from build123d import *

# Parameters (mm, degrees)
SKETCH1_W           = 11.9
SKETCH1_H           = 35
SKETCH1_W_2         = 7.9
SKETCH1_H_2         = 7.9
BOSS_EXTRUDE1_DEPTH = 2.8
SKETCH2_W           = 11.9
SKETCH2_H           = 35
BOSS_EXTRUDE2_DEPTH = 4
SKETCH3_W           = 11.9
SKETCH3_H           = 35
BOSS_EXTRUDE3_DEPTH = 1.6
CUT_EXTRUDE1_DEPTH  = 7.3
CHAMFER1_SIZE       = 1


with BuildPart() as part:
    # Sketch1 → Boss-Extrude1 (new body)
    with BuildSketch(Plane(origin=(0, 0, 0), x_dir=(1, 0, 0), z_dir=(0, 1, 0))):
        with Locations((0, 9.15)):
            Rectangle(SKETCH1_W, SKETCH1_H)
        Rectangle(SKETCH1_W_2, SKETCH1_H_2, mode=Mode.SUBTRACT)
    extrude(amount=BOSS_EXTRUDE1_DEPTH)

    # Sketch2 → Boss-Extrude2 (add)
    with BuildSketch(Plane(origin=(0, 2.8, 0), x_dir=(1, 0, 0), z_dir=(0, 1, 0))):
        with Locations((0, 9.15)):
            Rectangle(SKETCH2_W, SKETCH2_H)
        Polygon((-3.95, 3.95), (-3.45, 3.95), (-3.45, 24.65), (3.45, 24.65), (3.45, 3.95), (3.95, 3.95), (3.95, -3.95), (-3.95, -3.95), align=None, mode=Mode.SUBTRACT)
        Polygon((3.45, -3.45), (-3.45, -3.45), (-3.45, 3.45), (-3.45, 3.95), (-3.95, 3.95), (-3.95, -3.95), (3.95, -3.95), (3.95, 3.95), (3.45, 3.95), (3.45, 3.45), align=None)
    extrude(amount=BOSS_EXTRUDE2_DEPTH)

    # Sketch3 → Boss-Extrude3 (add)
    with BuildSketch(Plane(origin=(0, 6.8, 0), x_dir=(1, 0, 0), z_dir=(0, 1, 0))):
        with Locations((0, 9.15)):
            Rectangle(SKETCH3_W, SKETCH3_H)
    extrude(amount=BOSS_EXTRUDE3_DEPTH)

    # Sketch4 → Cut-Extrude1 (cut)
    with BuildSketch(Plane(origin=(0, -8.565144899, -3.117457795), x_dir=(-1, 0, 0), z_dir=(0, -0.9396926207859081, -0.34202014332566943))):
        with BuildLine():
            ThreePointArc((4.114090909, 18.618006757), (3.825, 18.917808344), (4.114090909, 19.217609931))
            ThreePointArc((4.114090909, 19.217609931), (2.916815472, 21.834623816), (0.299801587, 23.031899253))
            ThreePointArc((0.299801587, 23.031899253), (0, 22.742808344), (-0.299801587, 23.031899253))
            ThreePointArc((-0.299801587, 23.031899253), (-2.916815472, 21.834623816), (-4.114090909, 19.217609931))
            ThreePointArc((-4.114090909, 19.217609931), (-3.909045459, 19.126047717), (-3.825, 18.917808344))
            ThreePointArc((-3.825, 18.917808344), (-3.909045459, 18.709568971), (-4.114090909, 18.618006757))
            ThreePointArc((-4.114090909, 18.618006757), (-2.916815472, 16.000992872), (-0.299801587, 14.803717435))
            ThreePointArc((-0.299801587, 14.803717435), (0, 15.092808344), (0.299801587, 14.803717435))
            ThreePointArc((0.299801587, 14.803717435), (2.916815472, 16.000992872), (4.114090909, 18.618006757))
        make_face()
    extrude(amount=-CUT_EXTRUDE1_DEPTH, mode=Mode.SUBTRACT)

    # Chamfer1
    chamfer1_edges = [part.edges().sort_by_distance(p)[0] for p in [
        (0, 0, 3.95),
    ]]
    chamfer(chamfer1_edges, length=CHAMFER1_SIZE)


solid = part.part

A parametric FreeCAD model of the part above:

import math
import FreeCAD as App
import Part
import Sketcher
from FreeCAD import Vector


def edges_at(feature, points):
    """Names of the edges that pass closest to the given points."""
    edges = feature.Shape.Edges
    near = lambda p: min(range(len(edges)), key=lambda i: edges[i].distToShape(Part.Vertex(*p))[0])
    return sorted({f"Edge{near(p) + 1}" for p in points})

doc = App.newDocument("Part")
body = doc.addObject("PartDesign::Body", "Body")

# Sketch on XZ plane
sketch1 = body.newObject("Sketcher::SketchObject", "Sketch")
sketch1.AttachmentSupport = (doc.getObject("XZ_Plane"), [""])
sketch1.MapMode = "FlatFace"
sketch1.addGeometry([
    Part.LineSegment(Vector(-6, -27, 0), Vector(-6, 8, 0)),  # 0
    Part.LineSegment(Vector(-6, 8, 0), Vector(6, 8, 0)),  # 1
    Part.LineSegment(Vector(6, 8, 0), Vector(6, -27, 0)),  # 2
    Part.LineSegment(Vector(6, -27, 0), Vector(-6, -27, 0)),  # 3
    Part.LineSegment(Vector(4, 4, 0), Vector(-4, 4, 0)),  # 4
    Part.LineSegment(Vector(-4, 4, 0), Vector(-4, -4, 0)),  # 5
    Part.LineSegment(Vector(-4, -4, 0), Vector(4, -4, 0)),  # 6
    Part.LineSegment(Vector(4, -4, 0), Vector(4, 4, 0)),  # 7
], False)
sketch1.addConstraint([
    Sketcher.Constraint("Coincident", 0, 2, 1, 1),
    Sketcher.Constraint("Coincident", 1, 2, 2, 1),
    Sketcher.Constraint("Coincident", 2, 2, 3, 1),
    Sketcher.Constraint("Coincident", 3, 2, 0, 1),
    Sketcher.Constraint("Coincident", 4, 2, 5, 1),
    Sketcher.Constraint("Coincident", 5, 2, 6, 1),
    Sketcher.Constraint("Coincident", 6, 2, 7, 1),
    Sketcher.Constraint("Coincident", 7, 2, 4, 1),
    Sketcher.Constraint("Vertical", 0),
    Sketcher.Constraint("Horizontal", 1),
    Sketcher.Constraint("Vertical", 2),
    Sketcher.Constraint("Horizontal", 3),
    Sketcher.Constraint("Horizontal", 4),
    Sketcher.Constraint("Vertical", 5),
    Sketcher.Constraint("Horizontal", 6),
    Sketcher.Constraint("Vertical", 7),
    Sketcher.Constraint("Symmetric", 4, 2, 6, 2, -1, 1),
    Sketcher.Constraint("Equal", 6, 5),
    Sketcher.Constraint("DistanceY", 0, 1, 0, 2, 35.0),
    Sketcher.Constraint("DistanceX", 1, 1, 1, 2, 11.9),
    Sketcher.Constraint("DistanceX", 4, 2, 4, 1, 7.9),
    Sketcher.Constraint("DistanceX", 0, 2, 4, 2, 2.0),
    Sketcher.Constraint("DistanceY", 4, 2, 0, 2, 4.4),
])
pad1 = body.newObject("PartDesign::Pad", "Pad")
pad1.Profile = sketch1
pad1.Length = 2.8
pad1.Reversed = True

# Sketch on XZ plane
sketch2 = body.newObject("Sketcher::SketchObject", "Sketch001")
sketch2.AttachmentSupport = (doc.getObject("XZ_Plane"), [""])
sketch2.MapMode = "FlatFace"
sketch2.AttachmentOffset = App.Placement(Vector(0, 0, -2.8), App.Rotation())
sketch2.addGeometry([
    Part.LineSegment(Vector(-6, -27, 0), Vector(-6, 8, 0)),  # 0
    Part.LineSegment(Vector(-6, 8, 0), Vector(6, 8, 0)),  # 1
    Part.LineSegment(Vector(6, 8, 0), Vector(6, -27, 0)),  # 2
    Part.LineSegment(Vector(6, -27, 0), Vector(-6, -27, 0)),  # 3
    Part.LineSegment(Vector(3, -25, 0), Vector(3, 3, 0)),  # 4
    Part.LineSegment(Vector(3, 3, 0), Vector(-3, 3, 0)),  # 5
    Part.LineSegment(Vector(-3, 3, 0), Vector(-3, -25, 0)),  # 6
    Part.LineSegment(Vector(-3, -25, 0), Vector(3, -25, 0)),  # 7
], False)
sketch2.addConstraint([
    Sketcher.Constraint("Coincident", 0, 2, 1, 1),
    Sketcher.Constraint("Coincident", 1, 2, 2, 1),
    Sketcher.Constraint("Coincident", 2, 2, 3, 1),
    Sketcher.Constraint("Coincident", 3, 2, 0, 1),
    Sketcher.Constraint("Coincident", 4, 2, 5, 1),
    Sketcher.Constraint("Coincident", 5, 2, 6, 1),
    Sketcher.Constraint("Coincident", 6, 2, 7, 1),
    Sketcher.Constraint("Coincident", 7, 2, 4, 1),
    Sketcher.Constraint("Vertical", 0),
    Sketcher.Constraint("Horizontal", 1),
    Sketcher.Constraint("Vertical", 2),
    Sketcher.Constraint("Horizontal", 3),
    Sketcher.Constraint("Vertical", 4),
    Sketcher.Constraint("Horizontal", 5),
    Sketcher.Constraint("Vertical", 6),
    Sketcher.Constraint("Horizontal", 7),
    Sketcher.Constraint("DistanceY", 0, 1, 0, 2, 35.0),
    Sketcher.Constraint("DistanceX", 1, 1, 1, 2, 11.9),
    Sketcher.Constraint("DistanceX", 5, 2, 5, 1, 6.9),
    Sketcher.Constraint("DistanceY", 4, 1, 4, 2, 28.1),
    Sketcher.Constraint("DistanceY", 3, 2, 6, 2, 2.0),
    Sketcher.Constraint("DistanceX", 4, 2, 1, 2, 2.5),
    Sketcher.Constraint("DistanceX", 0, 2, -1, 1, 5.95),
    Sketcher.Constraint("DistanceY", -1, 1, 0, 2, 8.35),
])
pad2 = body.newObject("PartDesign::Pad", "Pad001")
pad2.Profile = sketch2
pad2.Length = 4
pad2.Reversed = True

# Sketch on XZ plane
sketch3 = body.newObject("Sketcher::SketchObject", "Sketch002")
sketch3.AttachmentSupport = (doc.getObject("XZ_Plane"), [""])
sketch3.MapMode = "FlatFace"
sketch3.AttachmentOffset = App.Placement(Vector(0, 0, -6.8), App.Rotation())
sketch3.addGeometry([
    Part.LineSegment(Vector(-6, -27, 0), Vector(-6, 8, 0)),
    Part.LineSegment(Vector(-6, 8, 0), Vector(6, 8, 0)),
    Part.LineSegment(Vector(6, 8, 0), Vector(6, -27, 0)),
    Part.LineSegment(Vector(6, -27, 0), Vector(-6, -27, 0)),
], False)
sketch3.addConstraint([
    Sketcher.Constraint("Coincident", 0, 2, 1, 1),
    Sketcher.Constraint("Coincident", 1, 2, 2, 1),
    Sketcher.Constraint("Coincident", 2, 2, 3, 1),
    Sketcher.Constraint("Coincident", 3, 2, 0, 1),
    Sketcher.Constraint("Vertical", 0),
    Sketcher.Constraint("Horizontal", 1),
    Sketcher.Constraint("Vertical", 2),
    Sketcher.Constraint("Horizontal", 3),
    Sketcher.Constraint("DistanceY", 0, 1, 0, 2, 35.0),
    Sketcher.Constraint("DistanceX", 1, 1, 1, 2, 11.9),
    Sketcher.Constraint("DistanceX", 0, 2, -1, 1, 5.95),
    Sketcher.Constraint("DistanceY", -1, 1, 0, 2, 8.35),
])
pad3 = body.newObject("PartDesign::Pad", "Pad002")
pad3.Profile = sketch3
pad3.Length = 1.6
pad3.Reversed = True

# Sketch on an angled plane
sketch4 = body.newObject("Sketcher::SketchObject", "Sketch003")
sketch4.Placement = App.Placement(Vector(0, -8.565145, -3.117458), App.Rotation(Vector(-1, 0, 0), Vector(0, 0.342020143, -0.939692621), Vector(0, -0.939692621, -0.342020143), "ZXY"))
sketch4.addGeometry([
    Part.ArcOfCircle(Part.Circle(Vector(4.12, 18.92, 0), Vector(0, 0, 1), 0.3), math.radians(92), math.radians(268)),  # 0
    Part.ArcOfCircle(Part.Circle(Vector(0, 18.92, 0), Vector(0, 0, 1), 4.13), math.radians(4), math.radians(86)),  # 1
    Part.ArcOfCircle(Part.Circle(Vector(0, 23.04, 0), Vector(0, 0, 1), 0.3), math.radians(-178), math.radians(-2)),  # 2
    Part.ArcOfCircle(Part.Circle(Vector(0, 18.92, 0), Vector(0, 0, 1), 4.13), math.radians(94), math.radians(176)),  # 3
    Part.ArcOfCircle(Part.Circle(Vector(-4.12, 18.92, 0), Vector(0, 0, 1), 0.3), math.radians(0), math.radians(88)),  # 4
    Part.ArcOfCircle(Part.Circle(Vector(-4.12, 18.92, 0), Vector(0, 0, 1), 0.3), math.radians(-88), math.radians(0)),  # 5
    Part.ArcOfCircle(Part.Circle(Vector(0, 18.92, 0), Vector(0, 0, 1), 4.13), math.radians(-176), math.radians(-94)),  # 6
    Part.ArcOfCircle(Part.Circle(Vector(0, 14.79, 0), Vector(0, 0, 1), 0.3), math.radians(2), math.radians(178)),  # 7
    Part.ArcOfCircle(Part.Circle(Vector(0, 18.92, 0), Vector(0, 0, 1), 4.13), math.radians(-86), math.radians(-4)),  # 8
], False)
sketch4.addConstraint([
    Sketcher.Constraint("Coincident", 0, 1, 1, 1),
    Sketcher.Constraint("Coincident", 1, 2, 2, 2),
    Sketcher.Constraint("Coincident", 2, 1, 3, 1),
    Sketcher.Constraint("Coincident", 3, 2, 4, 2),
    Sketcher.Constraint("Tangent", 4, 1, 5, 2),
    Sketcher.Constraint("Coincident", 5, 1, 6, 1),
    Sketcher.Constraint("Coincident", 6, 2, 7, 2),
    Sketcher.Constraint("Coincident", 7, 1, 8, 1),
    Sketcher.Constraint("Coincident", 8, 2, 0, 2),
    Sketcher.Constraint("Coincident", 3, 3, 1, 3),
    Sketcher.Constraint("Coincident", 6, 3, 1, 3),
    Sketcher.Constraint("Coincident", 8, 3, 1, 3),
    Sketcher.Constraint("Equal", 0, 2),
    Sketcher.Constraint("Equal", 1, 3),
    Sketcher.Constraint("Equal", 2, 4),
    Sketcher.Constraint("Equal", 4, 5),
    Sketcher.Constraint("Equal", 3, 6),
    Sketcher.Constraint("Equal", 5, 7),
    Sketcher.Constraint("Equal", 6, 8),
    Sketcher.Constraint("Symmetric", 0, 3, 4, 3, -2),
    Sketcher.Constraint("Symmetric", 1, 2, 2, 1, -2),
    Sketcher.Constraint("PointOnObject", 7, 3, -2),
    Sketcher.Constraint("Horizontal", 0, 3, 1, 3),
    Sketcher.Constraint("Horizontal", 8, 3, 4, 1),
    Sketcher.Constraint("Vertical", 2, 1, 6, 2),
    Sketcher.Constraint("Radius", 0, 0.3),
    Sketcher.Constraint("Radius", 1, 4.125),
    Sketcher.Constraint("DistanceX", 4, 3, 0, 3, 8.25),
    Sketcher.Constraint("DistanceY", 1, 3, 2, 3, 4.125),
    Sketcher.Constraint("DistanceY", -1, 1, 1, 2, 23.031899),
])
pocket1 = body.newObject("PartDesign::Pocket", "Pocket")
pocket1.Profile = sketch4
pocket1.Length = 7.3
doc.recompute()

chamfer = body.newObject("PartDesign::Chamfer", "Chamfer")
chamfer.Base = (pocket1, edges_at(pocket1, [(0, 0, 3.95)]))
chamfer.Size = 1

doc.recompute()
